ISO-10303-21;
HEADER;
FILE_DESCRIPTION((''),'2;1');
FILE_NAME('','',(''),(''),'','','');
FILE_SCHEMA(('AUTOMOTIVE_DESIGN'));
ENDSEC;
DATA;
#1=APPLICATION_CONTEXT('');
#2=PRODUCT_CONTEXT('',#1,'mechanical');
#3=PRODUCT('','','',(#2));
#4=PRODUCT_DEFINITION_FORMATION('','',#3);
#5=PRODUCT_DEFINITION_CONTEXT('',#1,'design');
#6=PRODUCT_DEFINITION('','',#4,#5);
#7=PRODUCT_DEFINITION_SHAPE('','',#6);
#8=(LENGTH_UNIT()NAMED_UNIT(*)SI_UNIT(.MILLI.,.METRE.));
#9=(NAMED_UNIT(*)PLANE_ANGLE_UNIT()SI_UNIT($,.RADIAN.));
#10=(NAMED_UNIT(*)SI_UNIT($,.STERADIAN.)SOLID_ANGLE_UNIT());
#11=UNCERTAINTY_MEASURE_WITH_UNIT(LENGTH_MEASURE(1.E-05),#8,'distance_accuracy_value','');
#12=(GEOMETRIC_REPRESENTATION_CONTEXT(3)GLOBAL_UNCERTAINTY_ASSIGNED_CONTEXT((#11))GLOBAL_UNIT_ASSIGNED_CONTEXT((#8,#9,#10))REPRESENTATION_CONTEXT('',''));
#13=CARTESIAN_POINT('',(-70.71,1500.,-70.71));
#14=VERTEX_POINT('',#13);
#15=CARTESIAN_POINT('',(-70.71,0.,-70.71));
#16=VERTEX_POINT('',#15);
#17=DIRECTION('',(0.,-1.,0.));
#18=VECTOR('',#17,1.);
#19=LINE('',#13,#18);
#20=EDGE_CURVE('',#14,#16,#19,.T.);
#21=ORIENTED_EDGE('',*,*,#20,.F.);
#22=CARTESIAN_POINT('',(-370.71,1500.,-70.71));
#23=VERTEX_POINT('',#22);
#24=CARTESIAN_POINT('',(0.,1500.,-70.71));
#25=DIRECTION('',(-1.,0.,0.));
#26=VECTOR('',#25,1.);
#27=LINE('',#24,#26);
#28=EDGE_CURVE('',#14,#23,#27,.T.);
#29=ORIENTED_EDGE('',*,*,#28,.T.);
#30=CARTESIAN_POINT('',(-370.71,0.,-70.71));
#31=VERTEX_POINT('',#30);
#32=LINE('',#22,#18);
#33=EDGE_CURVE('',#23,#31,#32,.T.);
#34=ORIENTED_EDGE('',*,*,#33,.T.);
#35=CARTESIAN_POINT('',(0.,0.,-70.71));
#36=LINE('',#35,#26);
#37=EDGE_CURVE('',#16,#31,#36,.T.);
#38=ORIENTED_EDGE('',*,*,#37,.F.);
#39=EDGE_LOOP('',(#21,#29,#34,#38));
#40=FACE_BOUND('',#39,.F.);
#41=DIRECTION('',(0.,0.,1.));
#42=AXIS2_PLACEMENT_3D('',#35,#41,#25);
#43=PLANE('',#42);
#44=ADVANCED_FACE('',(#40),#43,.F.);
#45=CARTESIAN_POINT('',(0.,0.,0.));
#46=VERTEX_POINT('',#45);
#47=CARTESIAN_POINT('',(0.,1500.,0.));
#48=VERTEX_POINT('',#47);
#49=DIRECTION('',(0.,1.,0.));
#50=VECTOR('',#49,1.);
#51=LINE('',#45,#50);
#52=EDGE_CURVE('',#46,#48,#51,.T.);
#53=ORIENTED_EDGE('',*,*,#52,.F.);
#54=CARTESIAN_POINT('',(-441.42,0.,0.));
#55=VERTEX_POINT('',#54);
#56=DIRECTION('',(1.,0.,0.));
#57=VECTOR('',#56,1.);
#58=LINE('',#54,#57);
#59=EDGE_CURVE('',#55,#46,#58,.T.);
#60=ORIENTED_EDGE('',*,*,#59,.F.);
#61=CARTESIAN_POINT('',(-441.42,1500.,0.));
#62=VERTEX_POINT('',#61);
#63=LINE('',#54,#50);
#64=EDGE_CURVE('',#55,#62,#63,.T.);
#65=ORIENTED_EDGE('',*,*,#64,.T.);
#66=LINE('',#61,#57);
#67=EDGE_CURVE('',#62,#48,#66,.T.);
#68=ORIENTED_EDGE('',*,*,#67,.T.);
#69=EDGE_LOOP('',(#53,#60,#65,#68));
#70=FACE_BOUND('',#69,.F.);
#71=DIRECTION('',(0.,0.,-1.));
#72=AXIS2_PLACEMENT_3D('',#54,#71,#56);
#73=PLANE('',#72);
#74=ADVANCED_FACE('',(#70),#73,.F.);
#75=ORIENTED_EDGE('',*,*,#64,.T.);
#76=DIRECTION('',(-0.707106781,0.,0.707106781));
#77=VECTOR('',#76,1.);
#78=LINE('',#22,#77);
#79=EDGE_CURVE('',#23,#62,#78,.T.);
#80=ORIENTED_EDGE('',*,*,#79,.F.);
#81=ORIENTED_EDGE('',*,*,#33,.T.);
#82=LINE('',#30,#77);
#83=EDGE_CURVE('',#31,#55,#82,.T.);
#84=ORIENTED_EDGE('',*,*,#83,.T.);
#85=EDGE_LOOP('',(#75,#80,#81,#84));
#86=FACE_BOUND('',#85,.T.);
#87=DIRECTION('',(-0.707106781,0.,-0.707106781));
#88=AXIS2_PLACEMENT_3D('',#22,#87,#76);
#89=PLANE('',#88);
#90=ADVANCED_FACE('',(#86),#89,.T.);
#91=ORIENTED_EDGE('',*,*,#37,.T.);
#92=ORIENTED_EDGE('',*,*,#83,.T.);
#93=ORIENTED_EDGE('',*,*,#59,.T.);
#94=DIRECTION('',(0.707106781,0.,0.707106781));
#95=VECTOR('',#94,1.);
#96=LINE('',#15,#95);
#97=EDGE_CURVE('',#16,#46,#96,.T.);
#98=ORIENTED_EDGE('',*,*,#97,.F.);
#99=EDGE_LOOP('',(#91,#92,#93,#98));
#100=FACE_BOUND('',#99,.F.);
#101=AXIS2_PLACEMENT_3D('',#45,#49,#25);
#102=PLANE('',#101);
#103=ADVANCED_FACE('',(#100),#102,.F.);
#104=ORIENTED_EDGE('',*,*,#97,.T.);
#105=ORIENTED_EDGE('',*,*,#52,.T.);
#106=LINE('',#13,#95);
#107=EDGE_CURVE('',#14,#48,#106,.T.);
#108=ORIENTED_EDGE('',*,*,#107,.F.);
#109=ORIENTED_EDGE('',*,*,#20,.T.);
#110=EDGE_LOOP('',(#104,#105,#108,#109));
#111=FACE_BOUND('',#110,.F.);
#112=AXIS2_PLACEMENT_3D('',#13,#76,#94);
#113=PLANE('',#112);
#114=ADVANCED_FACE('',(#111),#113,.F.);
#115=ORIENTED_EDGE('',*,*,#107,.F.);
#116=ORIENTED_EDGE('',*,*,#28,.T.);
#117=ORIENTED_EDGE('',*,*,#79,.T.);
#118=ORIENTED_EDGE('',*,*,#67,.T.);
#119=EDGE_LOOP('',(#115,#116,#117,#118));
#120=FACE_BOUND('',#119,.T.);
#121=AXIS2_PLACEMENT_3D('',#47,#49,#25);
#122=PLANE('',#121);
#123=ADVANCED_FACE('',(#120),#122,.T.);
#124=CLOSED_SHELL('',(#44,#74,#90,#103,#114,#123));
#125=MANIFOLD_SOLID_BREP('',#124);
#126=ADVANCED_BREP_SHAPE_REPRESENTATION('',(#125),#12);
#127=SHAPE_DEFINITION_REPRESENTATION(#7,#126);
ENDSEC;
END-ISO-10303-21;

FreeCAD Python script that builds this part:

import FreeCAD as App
import Part
import Sketcher
from FreeCAD import Vector
Q = App.Units.Quantity


def add_polygon(sketch, points):
    """Adds a closed chain of lines whose ends are joined by coincident constraints."""
    first, n = sketch.GeometryCount, len(points)
    for a, b in zip(points, points[1:] + points[:1]):
        sketch.addGeometry(Part.LineSegment(App.Vector(*a, 0), App.Vector(*b, 0)), False)
    for i in range(n):
        sketch.addConstraint(Sketcher.Constraint("Coincident", first + i, 2, first + (i + 1) % n, 1))

doc = App.newDocument("Part")
body = doc.addObject("PartDesign::Body", "Body")

sketch1 = body.newObject("Sketcher::SketchObject", "Sketch")
sketch1.AttachmentSupport = (doc.getObject("XZ_Plane"), [""])
sketch1.MapMode = "FlatFace"
add_polygon(sketch1, [(0, 0), (0, -70.71), (-441.42, -70.71), (-441.42, 0)])
sketch1.addConstraint([
    Sketcher.Constraint("Vertical", 0),
    Sketcher.Constraint("Horizontal", 1),
    Sketcher.Constraint("Vertical", 2),
    Sketcher.Constraint("Horizontal", 3),
    Sketcher.Constraint("Coincident", 3, 2, -1, 1),
    Sketcher.Constraint("DistanceX", 1, 2, 1, 1, Q("441.42 mm")),
    Sketcher.Constraint("DistanceY", 0, 2, 0, 1, Q("70.71 mm")),
])
pad1 = body.newObject("PartDesign::Pad", "Pad")
pad1.Profile = sketch1
pad1.Length = 1500
pad1.Reversed = True

sketch2 = body.newObject("Sketcher::SketchObject", "Sketch001")
sketch2.AttachmentSupport = (doc.getObject("XZ_Plane"), [""])
sketch2.MapMode = "FlatFace"
sketch2.AttachmentOffset = App.Placement(Vector(0, 0, -1500), App.Rotation())
add_polygon(sketch2, [(0, 0), (0, -70.71), (-70.71, -70.71)])
add_polygon(sketch2, [(-441.42, 0), (-370.71, -70.71), (-441.42, -70.71)])
sketch2.addConstraint([
    Sketcher.Constraint("Vertical", 0),
    Sketcher.Constraint("Horizontal", 1),
    Sketcher.Constraint("Horizontal", 4),
    Sketcher.Constraint("Vertical", 5),
    Sketcher.Constraint("Coincident", 2, 2, -1, 1),
    Sketcher.Constraint("PointOnObject", 5, 2, -1),
    Sketcher.Constraint("Perpendicular", 2, 3),
    Sketcher.Constraint("Horizontal", 1, 2, 3, 2),
    Sketcher.Constraint("Equal", 1, 4),
    Sketcher.Constraint("DistanceX", 1, 2, 1, 1, Q("70.71 mm")),
    Sketcher.Constraint("DistanceX", 3, 2, 1, 2, Q("300 mm")),
])
pocket1 = body.newObject("PartDesign::Pocket", "Pocket")
pocket1.Profile = sketch2
pocket1.Length = 1500
pocket1.Reversed = True

doc.recompute()
